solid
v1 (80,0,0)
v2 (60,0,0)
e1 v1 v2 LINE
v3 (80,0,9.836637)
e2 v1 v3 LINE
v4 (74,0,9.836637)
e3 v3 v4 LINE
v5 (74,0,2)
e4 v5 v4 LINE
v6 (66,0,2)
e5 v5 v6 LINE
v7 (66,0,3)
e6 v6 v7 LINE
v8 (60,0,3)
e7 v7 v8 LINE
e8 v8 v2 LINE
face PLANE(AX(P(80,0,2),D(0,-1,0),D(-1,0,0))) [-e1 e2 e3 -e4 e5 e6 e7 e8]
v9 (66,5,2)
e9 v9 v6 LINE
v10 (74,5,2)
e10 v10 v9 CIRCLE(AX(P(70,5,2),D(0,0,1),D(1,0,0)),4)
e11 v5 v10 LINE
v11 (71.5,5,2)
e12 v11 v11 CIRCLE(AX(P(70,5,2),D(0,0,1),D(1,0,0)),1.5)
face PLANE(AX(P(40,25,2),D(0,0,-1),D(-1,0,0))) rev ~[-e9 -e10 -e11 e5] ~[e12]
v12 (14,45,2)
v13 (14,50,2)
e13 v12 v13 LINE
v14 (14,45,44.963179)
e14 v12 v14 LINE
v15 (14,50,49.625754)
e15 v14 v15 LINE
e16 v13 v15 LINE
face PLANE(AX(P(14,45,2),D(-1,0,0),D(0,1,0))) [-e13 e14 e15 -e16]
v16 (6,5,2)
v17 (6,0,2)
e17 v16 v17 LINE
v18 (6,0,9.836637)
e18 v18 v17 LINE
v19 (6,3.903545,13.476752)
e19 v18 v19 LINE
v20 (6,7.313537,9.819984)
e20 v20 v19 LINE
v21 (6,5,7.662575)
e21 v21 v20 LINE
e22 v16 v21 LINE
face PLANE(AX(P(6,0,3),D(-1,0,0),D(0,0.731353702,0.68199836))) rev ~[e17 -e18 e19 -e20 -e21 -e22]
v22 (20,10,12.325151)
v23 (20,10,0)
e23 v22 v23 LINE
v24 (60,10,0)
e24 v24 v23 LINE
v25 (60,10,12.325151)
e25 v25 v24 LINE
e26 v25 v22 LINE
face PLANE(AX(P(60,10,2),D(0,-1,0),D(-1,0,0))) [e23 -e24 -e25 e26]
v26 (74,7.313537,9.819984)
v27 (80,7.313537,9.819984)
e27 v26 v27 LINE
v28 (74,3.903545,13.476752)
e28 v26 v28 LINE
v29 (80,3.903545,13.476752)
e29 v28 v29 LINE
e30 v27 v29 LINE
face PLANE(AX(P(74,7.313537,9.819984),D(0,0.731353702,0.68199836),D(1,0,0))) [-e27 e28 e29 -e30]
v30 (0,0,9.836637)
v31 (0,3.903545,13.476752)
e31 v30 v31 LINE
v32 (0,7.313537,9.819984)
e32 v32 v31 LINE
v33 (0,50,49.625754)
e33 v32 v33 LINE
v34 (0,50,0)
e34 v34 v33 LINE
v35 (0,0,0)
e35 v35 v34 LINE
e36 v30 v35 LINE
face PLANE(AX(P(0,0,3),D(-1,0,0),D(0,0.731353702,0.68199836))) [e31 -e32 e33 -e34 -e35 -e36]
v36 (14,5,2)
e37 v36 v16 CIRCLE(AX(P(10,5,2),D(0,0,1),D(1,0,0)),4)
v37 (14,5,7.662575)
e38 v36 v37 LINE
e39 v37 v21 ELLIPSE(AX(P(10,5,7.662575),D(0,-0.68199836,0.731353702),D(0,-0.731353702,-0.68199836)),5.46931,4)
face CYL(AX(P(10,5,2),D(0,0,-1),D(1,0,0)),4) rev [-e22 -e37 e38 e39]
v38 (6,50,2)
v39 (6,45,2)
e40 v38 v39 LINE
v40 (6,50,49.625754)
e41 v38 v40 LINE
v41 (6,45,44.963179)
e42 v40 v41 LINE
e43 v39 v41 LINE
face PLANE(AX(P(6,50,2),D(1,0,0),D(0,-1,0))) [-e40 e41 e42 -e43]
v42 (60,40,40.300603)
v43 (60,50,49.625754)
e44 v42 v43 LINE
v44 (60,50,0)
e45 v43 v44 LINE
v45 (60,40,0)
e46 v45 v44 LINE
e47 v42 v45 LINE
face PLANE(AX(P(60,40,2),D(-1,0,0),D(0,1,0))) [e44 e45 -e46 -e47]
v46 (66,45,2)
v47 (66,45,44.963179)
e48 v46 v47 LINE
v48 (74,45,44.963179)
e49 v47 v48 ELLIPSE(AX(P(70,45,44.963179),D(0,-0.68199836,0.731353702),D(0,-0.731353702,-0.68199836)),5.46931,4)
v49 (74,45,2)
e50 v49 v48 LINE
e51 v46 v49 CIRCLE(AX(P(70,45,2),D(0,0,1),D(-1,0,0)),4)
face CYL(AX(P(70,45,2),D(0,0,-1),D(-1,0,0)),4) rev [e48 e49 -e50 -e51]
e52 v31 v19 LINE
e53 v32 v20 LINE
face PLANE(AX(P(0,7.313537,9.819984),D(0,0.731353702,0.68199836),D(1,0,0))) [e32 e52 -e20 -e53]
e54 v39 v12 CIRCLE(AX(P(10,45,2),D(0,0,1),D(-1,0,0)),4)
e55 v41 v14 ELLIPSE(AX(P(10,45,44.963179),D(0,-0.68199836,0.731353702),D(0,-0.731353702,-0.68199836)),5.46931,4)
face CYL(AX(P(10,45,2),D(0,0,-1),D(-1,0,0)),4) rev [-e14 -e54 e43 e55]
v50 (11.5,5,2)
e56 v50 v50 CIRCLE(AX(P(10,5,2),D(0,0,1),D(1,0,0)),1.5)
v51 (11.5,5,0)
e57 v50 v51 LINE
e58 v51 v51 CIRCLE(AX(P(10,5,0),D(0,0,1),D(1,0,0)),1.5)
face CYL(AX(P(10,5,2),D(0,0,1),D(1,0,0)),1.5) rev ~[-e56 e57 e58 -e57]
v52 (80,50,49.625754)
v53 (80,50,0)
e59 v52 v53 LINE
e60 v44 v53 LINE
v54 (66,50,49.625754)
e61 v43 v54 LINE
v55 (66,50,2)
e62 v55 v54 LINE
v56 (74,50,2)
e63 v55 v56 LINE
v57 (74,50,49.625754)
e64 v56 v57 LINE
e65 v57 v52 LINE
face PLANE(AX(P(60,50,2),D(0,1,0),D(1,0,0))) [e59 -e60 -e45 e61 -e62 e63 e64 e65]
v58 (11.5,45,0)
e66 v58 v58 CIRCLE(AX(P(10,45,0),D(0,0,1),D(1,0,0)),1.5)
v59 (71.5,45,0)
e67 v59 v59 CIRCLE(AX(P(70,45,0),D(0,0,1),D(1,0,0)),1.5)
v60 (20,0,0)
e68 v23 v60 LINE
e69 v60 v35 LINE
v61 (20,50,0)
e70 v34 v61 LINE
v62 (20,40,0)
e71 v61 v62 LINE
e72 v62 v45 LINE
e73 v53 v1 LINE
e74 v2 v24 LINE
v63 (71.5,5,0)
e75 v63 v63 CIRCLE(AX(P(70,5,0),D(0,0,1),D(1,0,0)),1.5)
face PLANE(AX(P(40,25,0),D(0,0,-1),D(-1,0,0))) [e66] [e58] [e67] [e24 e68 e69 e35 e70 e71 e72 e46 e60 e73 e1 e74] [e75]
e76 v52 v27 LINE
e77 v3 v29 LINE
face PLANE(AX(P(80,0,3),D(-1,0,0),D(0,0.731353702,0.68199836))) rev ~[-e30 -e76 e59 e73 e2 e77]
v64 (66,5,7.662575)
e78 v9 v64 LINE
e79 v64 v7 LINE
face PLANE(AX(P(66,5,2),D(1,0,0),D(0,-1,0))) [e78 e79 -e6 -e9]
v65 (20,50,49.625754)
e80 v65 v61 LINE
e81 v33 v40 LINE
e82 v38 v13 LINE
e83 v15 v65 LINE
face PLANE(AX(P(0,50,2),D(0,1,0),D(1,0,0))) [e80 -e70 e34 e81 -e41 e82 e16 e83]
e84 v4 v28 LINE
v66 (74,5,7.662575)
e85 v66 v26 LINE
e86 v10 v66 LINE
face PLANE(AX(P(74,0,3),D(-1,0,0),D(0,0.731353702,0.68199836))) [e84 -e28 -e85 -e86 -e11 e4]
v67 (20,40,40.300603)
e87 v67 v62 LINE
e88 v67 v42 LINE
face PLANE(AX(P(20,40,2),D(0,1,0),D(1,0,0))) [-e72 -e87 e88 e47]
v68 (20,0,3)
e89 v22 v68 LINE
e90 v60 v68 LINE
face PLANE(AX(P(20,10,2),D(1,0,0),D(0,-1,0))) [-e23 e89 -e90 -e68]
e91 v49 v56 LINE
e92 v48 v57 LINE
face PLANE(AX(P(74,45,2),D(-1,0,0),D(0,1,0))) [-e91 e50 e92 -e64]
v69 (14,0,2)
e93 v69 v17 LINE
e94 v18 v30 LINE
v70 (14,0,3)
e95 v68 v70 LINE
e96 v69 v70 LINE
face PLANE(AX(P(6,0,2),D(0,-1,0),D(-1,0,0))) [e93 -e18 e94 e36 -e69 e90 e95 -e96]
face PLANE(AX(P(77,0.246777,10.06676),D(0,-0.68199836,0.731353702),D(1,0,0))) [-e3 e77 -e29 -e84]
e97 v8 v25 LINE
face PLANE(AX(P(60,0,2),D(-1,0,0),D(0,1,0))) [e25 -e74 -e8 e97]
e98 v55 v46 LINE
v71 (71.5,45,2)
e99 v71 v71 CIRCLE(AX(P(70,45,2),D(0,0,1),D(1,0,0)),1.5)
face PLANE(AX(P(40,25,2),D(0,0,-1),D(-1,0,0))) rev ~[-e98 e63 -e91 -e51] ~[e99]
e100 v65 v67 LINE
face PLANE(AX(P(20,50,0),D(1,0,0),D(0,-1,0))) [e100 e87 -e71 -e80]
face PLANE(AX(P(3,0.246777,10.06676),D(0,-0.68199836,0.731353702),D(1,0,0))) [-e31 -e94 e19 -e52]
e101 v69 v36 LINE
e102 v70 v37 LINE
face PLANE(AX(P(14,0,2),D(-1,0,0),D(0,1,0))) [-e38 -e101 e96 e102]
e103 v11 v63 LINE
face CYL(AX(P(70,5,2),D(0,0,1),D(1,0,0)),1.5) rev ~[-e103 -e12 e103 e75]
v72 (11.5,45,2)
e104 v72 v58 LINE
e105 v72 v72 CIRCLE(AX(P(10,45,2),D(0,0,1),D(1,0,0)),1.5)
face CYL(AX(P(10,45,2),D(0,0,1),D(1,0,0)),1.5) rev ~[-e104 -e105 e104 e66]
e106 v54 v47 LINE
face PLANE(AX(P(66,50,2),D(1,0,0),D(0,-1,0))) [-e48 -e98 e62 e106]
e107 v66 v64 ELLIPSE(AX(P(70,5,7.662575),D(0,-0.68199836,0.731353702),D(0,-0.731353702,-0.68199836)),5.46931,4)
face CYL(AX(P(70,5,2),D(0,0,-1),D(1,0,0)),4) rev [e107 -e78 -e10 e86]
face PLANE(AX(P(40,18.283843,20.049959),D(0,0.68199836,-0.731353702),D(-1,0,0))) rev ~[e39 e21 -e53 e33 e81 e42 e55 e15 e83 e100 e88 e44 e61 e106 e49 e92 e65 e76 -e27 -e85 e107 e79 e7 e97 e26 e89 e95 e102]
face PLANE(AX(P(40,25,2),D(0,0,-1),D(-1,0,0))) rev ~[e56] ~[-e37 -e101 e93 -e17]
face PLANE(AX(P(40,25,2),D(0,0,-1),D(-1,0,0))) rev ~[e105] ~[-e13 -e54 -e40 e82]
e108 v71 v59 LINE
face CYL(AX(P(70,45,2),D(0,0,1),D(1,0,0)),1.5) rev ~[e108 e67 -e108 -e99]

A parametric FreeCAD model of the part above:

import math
import FreeCAD as App
import Part
import Sketcher
Q = App.Units.Quantity


def faces_at(feature, points):
    """Names of the faces that lie closest to the given points."""
    faces = feature.Shape.Faces
    near = lambda p: min(range(len(faces)), key=lambda i: faces[i].distToShape(Part.Vertex(*p))[0])
    return sorted({f"Face{near(p) + 1}" for p in points})


def add_polygon(sketch, points):
    """Adds a closed chain of lines whose ends are joined by coincident constraints."""
    first, n = sketch.GeometryCount, len(points)
    for a, b in zip(points, points[1:] + points[:1]):
        sketch.addGeometry(Part.LineSegment(App.Vector(*a, 0), App.Vector(*b, 0)), False)
    for i in range(n):
        sketch.addConstraint(Sketcher.Constraint("Coincident", first + i, 2, first + (i + 1) % n, 1))

doc = App.newDocument("Part")
body = doc.addObject("PartDesign::Body", "Body")

sketch1 = body.newObject("Sketcher::SketchObject", "Sketch")
sketch1.AttachmentSupport = (doc.getObject("XY_Plane"), [""])
sketch1.MapMode = "FlatFace"
add_polygon(sketch1, [(0, 50), (0, 0), (20, 0), (20, 10), (60, 10), (60, 0), (80, 0), (80, 50), (60, 50), (60, 40), (20, 40), (20, 50)])
sketch1.addConstraint([
    Sketcher.Constraint("Vertical", 0),
    Sketcher.Constraint("Horizontal", 1),
    Sketcher.Constraint("Vertical", 2),
    Sketcher.Constraint("Horizontal", 3),
    Sketcher.Constraint("Vertical", 4),
    Sketcher.Constraint("Horizontal", 5),
    Sketcher.Constraint("Vertical", 6),
    Sketcher.Constraint("Horizontal", 7),
    Sketcher.Constraint("Vertical", 8),
    Sketcher.Constraint("Horizontal", 9),
    Sketcher.Constraint("Vertical", 10),
    Sketcher.Constraint("Horizontal", 11),
    Sketcher.Constraint("Coincident", 0, 2, -1, 1),
    Sketcher.Constraint("PointOnObject", 4, 2, -1),
    Sketcher.Constraint("Horizontal", 7, 2, 10, 2),
    Sketcher.Constraint("Vertical", 4, 2, 7, 2),
    Sketcher.Constraint("Vertical", 2, 2, 9, 2),
    Sketcher.Constraint("Equal", 1, 5),
    Sketcher.Constraint("Equal", 4, 8),
    Sketcher.Constraint("DistanceX", 1, 1, 1, 2, Q("20 mm")),
    Sketcher.Constraint("DistanceX", 3, 1, 3, 2, Q("40 mm")),
    Sketcher.Constraint("DistanceY", 0, 2, 0, 1, Q("50 mm")),
    Sketcher.Constraint("DistanceY", 2, 1, 2, 2, Q("10 mm")),
])
pad1 = body.newObject("PartDesign::Pad", "Pad")
pad1.Profile = sketch1
pad1.Length = 2

sketch2 = body.newObject("Sketcher::SketchObject", "Sketch001")
sketch2.AttachmentSupport = (doc.getObject("XY_Plane"), [""])
sketch2.MapMode = "FlatFace"
sketch2.AttachmentOffset = App.Placement(App.Vector(0, 0, 2), App.Rotation())
sketch2.addGeometry([
    Part.Circle(App.Vector(10, 45, 0), App.Vector(0, 0, 1), 1.5),
    Part.Circle(App.Vector(10, 5, 0), App.Vector(0, 0, 1), 1.5),
    Part.Circle(App.Vector(70, 45, 0), App.Vector(0, 0, 1), 1.5),
    Part.Circle(App.Vector(70, 5, 0), App.Vector(0, 0, 1), 1.5),
], False)
sketch2.addConstraint([
    Sketcher.Constraint("Equal", 0, 1),
    Sketcher.Constraint("Equal", 1, 2),
    Sketcher.Constraint("Equal", 2, 3),
    Sketcher.Constraint("Horizontal", 0, 3, 2, 3),
    Sketcher.Constraint("Horizontal", 1, 3, 3, 3),
    Sketcher.Constraint("Vertical", 0, 3, 1, 3),
    Sketcher.Constraint("Vertical", 2, 3, 3, 3),
    Sketcher.Constraint("Diameter", 0, Q("3 mm")),
    Sketcher.Constraint("DistanceX", -1, 1, 0, 3, Q("10 mm")),
    Sketcher.Constraint("DistanceY", -1, 1, 0, 3, Q("45 mm")),
    Sketcher.Constraint("DistanceY", -1, 1, 1, 3, Q("5 mm")),
    Sketcher.Constraint("DistanceX", -1, 1, 2, 3, Q("70 mm")),
])
pocket1 = body.newObject("PartDesign::Pocket", "Pocket")
pocket1.Profile = sketch2
pocket1.Type = "ThroughAll"

sketch3 = body.newObject("Sketcher::SketchObject", "Sketch002")
sketch3.AttachmentSupport = (doc.getObject("XY_Plane"), [""])
sketch3.MapMode = "FlatFace"
sketch3.AttachmentOffset = App.Placement(App.Vector(0, 0, 2), App.Rotation())
sketch3.addGeometry([
    Part.LineSegment(App.Vector(6, 50, 0), App.Vector(0, 50, 0)),
    Part.LineSegment(App.Vector(0, 50, 0), App.Vector(0, 0, 0)),
    Part.LineSegment(App.Vector(0, 0, 0), App.Vector(6, 0, 0)),
    Part.LineSegment(App.Vector(6, 0, 0), App.Vector(6, 5, 0)),
    Part.ArcOfCircle(Part.Circle(App.Vector(10, 5, 0), App.Vector(0, 0, 1), 4), math.radians(0), math.radians(180)),
    Part.LineSegment(App.Vector(14, 5, 0), App.Vector(14, 0, 0)),
    Part.LineSegment(App.Vector(14, 0, 0), App.Vector(20, 0, 0)),
    Part.LineSegment(App.Vector(20, 0, 0), App.Vector(20, 10, 0)),
    Part.LineSegment(App.Vector(20, 10, 0), App.Vector(60, 10, 0)),
    Part.LineSegment(App.Vector(60, 10, 0), App.Vector(60, 0, 0)),
    Part.LineSegment(App.Vector(60, 0, 0), App.Vector(66, 0, 0)),
    Part.LineSegment(App.Vector(66, 0, 0), App.Vector(66, 5, 0)),
    Part.ArcOfCircle(Part.Circle(App.Vector(70, 5, 0), App.Vector(0, 0, 1), 4), math.radians(0), math.radians(180)),
    Part.LineSegment(App.Vector(74, 5, 0), App.Vector(74, 0, 0)),
    Part.LineSegment(App.Vector(74, 0, 0), App.Vector(80, 0, 0)),
    Part.LineSegment(App.Vector(80, 0, 0), App.Vector(80, 50, 0)),
    Part.LineSegment(App.Vector(80, 50, 0), App.Vector(74, 50, 0)),
    Part.LineSegment(App.Vector(74, 50, 0), App.Vector(74, 45, 0)),
    Part.ArcOfCircle(Part.Circle(App.Vector(70, 45, 0), App.Vector(0, 0, 1), 4), math.radians(180), math.radians(360)),
    Part.LineSegment(App.Vector(66, 45, 0), App.Vector(66, 50, 0)),
    Part.LineSegment(App.Vector(66, 50, 0), App.Vector(60, 50, 0)),
    Part.LineSegment(App.Vector(60, 50, 0), App.Vector(60, 40, 0)),
    Part.LineSegment(App.Vector(60, 40, 0), App.Vector(20, 40, 0)),
    Part.LineSegment(App.Vector(20, 40, 0), App.Vector(20, 50, 0)),
    Part.LineSegment(App.Vector(20, 50, 0), App.Vector(14, 50, 0)),
    Part.LineSegment(App.Vector(14, 50, 0), App.Vector(14, 45, 0)),
    Part.ArcOfCircle(Part.Circle(App.Vector(10, 45, 0), App.Vector(0, 0, 1), 4), math.radians(180), math.radians(360)),
    Part.LineSegment(App.Vector(6, 45, 0), App.Vector(6, 50, 0)),
], False)
sketch3.addConstraint([
    Sketcher.Constraint("Coincident", 0, 2, 1, 1),
    Sketcher.Constraint("Coincident", 1, 2, 2, 1),
    Sketcher.Constraint("Coincident", 2, 2, 3, 1),
    Sketcher.Constraint("Tangent", 3, 2, 4, 2),
    Sketcher.Constraint("Tangent", 4, 1, 5, 1),
    Sketcher.Constraint("Coincident", 5, 2, 6, 1),
    Sketcher.Constraint("Coincident", 6, 2, 7, 1),
    Sketcher.Constraint("Coincident", 7, 2, 8, 1),
    Sketcher.Constraint("Coincident", 8, 2, 9, 1),
    Sketcher.Constraint("Coincident", 9, 2, 10, 1),
    Sketcher.Constraint("Coincident", 10, 2, 11, 1),
    Sketcher.Constraint("Tangent", 11, 2, 12, 2),
    Sketcher.Constraint("Tangent", 12, 1, 13, 1),
    Sketcher.Constraint("Coincident", 13, 2, 14, 1),
    Sketcher.Constraint("Coincident", 14, 2, 15, 1),
    Sketcher.Constraint("Coincident", 15, 2, 16, 1),
    Sketcher.Constraint("Coincident", 16, 2, 17, 1),
    Sketcher.Constraint("Tangent", 17, 2, 18, 2),
    Sketcher.Constraint("Tangent", 18, 1, 19, 1),
    Sketcher.Constraint("Coincident", 19, 2, 20, 1),
    Sketcher.Constraint("Coincident", 20, 2, 21, 1),
    Sketcher.Constraint("Coincident", 21, 2, 22, 1),
    Sketcher.Constraint("Coincident", 22, 2, 23, 1),
    Sketcher.Constraint("Coincident", 23, 2, 24, 1),
    Sketcher.Constraint("Coincident", 24, 2, 25, 1),
    Sketcher.Constraint("Tangent", 25, 2, 26, 2),
    Sketcher.Constraint("Tangent", 26, 1, 27, 1),
    Sketcher.Constraint("Coincident", 27, 2, 0, 1),
    Sketcher.Constraint("Horizontal", 0),
    Sketcher.Constraint("Vertical", 1),
    Sketcher.Constraint("Horizontal", 2),
    Sketcher.Constraint("Vertical", 3),
    Sketcher.Constraint("Vertical", 5),
    Sketcher.Constraint("Horizontal", 6),
    Sketcher.Constraint("Vertical", 7),
    Sketcher.Constraint("Horizontal", 8),
    Sketcher.Constraint("Vertical", 9),
    Sketcher.Constraint("Horizontal", 10),
    Sketcher.Constraint("Vertical", 11),
    Sketcher.Constraint("Vertical", 13),
    Sketcher.Constraint("Horizontal", 14),
    Sketcher.Constraint("Vertical", 15),
    Sketcher.Constraint("Horizontal", 16),
    Sketcher.Constraint("Vertical", 17),
    Sketcher.Constraint("Vertical", 19),
    Sketcher.Constraint("Horizontal", 20),
    Sketcher.Constraint("Vertical", 21),
    Sketcher.Constraint("Horizontal", 22),
    Sketcher.Constraint("Vertical", 23),
    Sketcher.Constraint("Horizontal", 24),
    Sketcher.Constraint("Vertical", 25),
    Sketcher.Constraint("Vertical", 27),
    Sketcher.Constraint("Coincident", 1, 2, -1, 1),
    Sketcher.Constraint("Equal", 4, 12),
    Sketcher.Constraint("Equal", 12, 18),
    Sketcher.Constraint("Equal", 18, 26),
    Sketcher.Constraint("PointOnObject", 5, 2, -1),
    Sketcher.Constraint("PointOnObject", 9, 2, -1),
    Sketcher.Constraint("PointOnObject", 13, 2, -1),
    Sketcher.Constraint("Horizontal", 4, 3, 12, 3),
    Sketcher.Constraint("Horizontal", 18, 3, 26, 3),
    Sketcher.Constraint("Horizontal", 0, 2, 15, 2),
    Sketcher.Constraint("Horizontal", 16, 2, 19, 2),
    Sketcher.Constraint("Horizontal", 20, 2, 23, 2),
    Sketcher.Constraint("Vertical", 12, 3, 18, 3),
    Sketcher.Constraint("Vertical", 4, 3, 26, 3),
    Sketcher.Constraint("Vertical", 9, 2, 20, 2),
    Sketcher.Constraint("Vertical", 7, 2, 22, 2),
    Sketcher.Constraint("Equal", 2, 6),
    Sketcher.Constraint("Equal", 6, 10),
    Sketcher.Constraint("Equal", 10, 14),
    Sketcher.Constraint("Equal", 13, 17),
    Sketcher.Constraint("Equal", 9, 21),
    Sketcher.Constraint("Radius", 4, Q("4 mm")),
    Sketcher.Constraint("DistanceX", 0, 2, 0, 1, Q("6 mm")),
    Sketcher.Constraint("DistanceX", 8, 1, 8, 2, Q("40 mm")),
    Sketcher.Constraint("DistanceY", 1, 2, 1, 1, Q("50 mm")),
    Sketcher.Constraint("DistanceY", 3, 1, 3, 2, Q("5 mm")),
    Sketcher.Constraint("DistanceY", 7, 1, 7, 2, Q("10 mm")),
])
pad2 = body.newObject("PartDesign::Pad", "Pad001")
pad2.Profile = sketch3
pad2.Length = 1
doc.recompute()

draft = body.newObject("PartDesign::Draft", "Draft")
draft.Base = (pad2, faces_at(pad2, [(40, 25, 3)]))
draft.NeutralPlane = (doc.getObject("XZ_Plane"), [""])
draft.Angle = 43
draft.Reversed = False

sketch4 = body.newObject("Sketcher::SketchObject", "Sketch003")
sketch4.Placement = App.Placement(App.Vector(0, -1.496346, 1.604635), App.Rotation(App.Vector(1, 0, 0), App.Vector(0, 0.731353702, 0.68199836), App.Vector(0, -0.68199836, 0.731353702), "ZXY"))
add_polygon(sketch4, [(0, 12), (0, 2), (6, 2), (6, 12)])
sketch4.addConstraint([
    Sketcher.Constraint("Vertical", 0),
    Sketcher.Constraint("Horizontal", 1),
    Sketcher.Constraint("Vertical", 2),
    Sketcher.Constraint("Horizontal", 3),
    Sketcher.Constraint("PointOnObject", 0, 2, -2),
    Sketcher.Constraint("DistanceX", 1, 1, 1, 2, Q("6 mm")),
    Sketcher.Constraint("DistanceY", 0, 2, 0, 1, Q("10 mm")),
    Sketcher.Constraint("DistanceY", -1, 1, 0, 2, Q("2.045995 mm")),
])
pad3 = body.newObject("PartDesign::Pad", "Pad002")
pad3.Profile = sketch4
pad3.Length = 5

sketch5 = body.newObject("Sketcher::SketchObject", "Sketch004")
sketch5.Placement = App.Placement(App.Vector(0, -1.496346, 1.604635), App.Rotation(App.Vector(1, 0, 0), App.Vector(0, 0.731353702, 0.68199836), App.Vector(0, -0.68199836, 0.731353702), "ZXY"))
add_polygon(sketch5, [(74, 12), (74, 2), (80, 2), (80, 12)])
sketch5.addConstraint([
    Sketcher.Constraint("Vertical", 0),
    Sketcher.Constraint("Horizontal", 1),
    Sketcher.Constraint("Vertical", 2),
    Sketcher.Constraint("Horizontal", 3),
    Sketcher.Constraint("DistanceX", 1, 1, 1, 2, Q("6 mm")),
    Sketcher.Constraint("DistanceY", 0, 2, 0, 1, Q("10 mm")),
    Sketcher.Constraint("DistanceX", -1, 1, 0, 2, Q("74 mm")),
    Sketcher.Constraint("DistanceY", -1, 1, 0, 2, Q("2.045995 mm")),
])
pad4 = body.newObject("PartDesign::Pad", "Pad003")
pad4.Profile = sketch5
pad4.Length = 5

sketch6 = body.newObject("Sketcher::SketchObject", "Sketch005")
sketch6.AttachmentSupport = (doc.getObject("YZ_Plane"), [""])
sketch6.MapMode = "FlatFace"
sketch6.AttachmentOffset = App.Placement(App.Vector(0, 0, 80), App.Rotation())
add_polygon(sketch6, [(0, 3), (0, 9.8), (-3.4, 6.7)])
sketch6.addConstraint([
    Sketcher.Constraint("Vertical", 0),
    Sketcher.Constraint("PointOnObject", 0, 2, -2),
    Sketcher.Constraint("Perpendicular", 1, 2),
    Sketcher.Constraint("Angle", 1, Q("-137 deg")),
    Sketcher.Constraint("Distance", 2, Q("5 mm")),
    Sketcher.Constraint("DistanceY", -1, 1, 2, 2, Q("3 mm")),
])
pocket2 = body.newObject("PartDesign::Pocket", "Pocket001")
pocket2.Profile = sketch6
pocket2.Type = "ThroughAll"

doc.recompute()
